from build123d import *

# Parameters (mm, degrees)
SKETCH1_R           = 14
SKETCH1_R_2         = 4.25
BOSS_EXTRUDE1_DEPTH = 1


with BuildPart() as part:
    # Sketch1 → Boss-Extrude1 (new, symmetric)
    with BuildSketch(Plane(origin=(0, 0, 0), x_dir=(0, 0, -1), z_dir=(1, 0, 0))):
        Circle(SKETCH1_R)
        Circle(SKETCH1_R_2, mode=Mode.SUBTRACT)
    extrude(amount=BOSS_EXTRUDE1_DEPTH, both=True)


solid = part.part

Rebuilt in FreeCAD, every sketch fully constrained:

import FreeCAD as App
import Part
import Sketcher
from FreeCAD import Vector

doc = App.newDocument("Part")
body = doc.addObject("PartDesign::Body", "Body")

sketch1 = doc.addObject("Sketcher::SketchObject", "Sketch")
body.addObject(sketch1)
sketch1.AttachmentSupport = (doc.YZ_Plane, [""])
sketch1.MapMode = "FlatFace"
sketch1.addGeometry(Part.Circle(Vector(0, 0, 0), Vector(0, 0, 1), 14), False)
sketch1.addGeometry(Part.Circle(Vector(0, 0, 0), Vector(0, 0, 1), 4.2), False)
sketch1.addConstraint(Sketcher.Constraint("Coincident", 0, 3, -1, 1))
sketch1.addConstraint(Sketcher.Constraint("Coincident", 1, 3, -1, 1))
sketch1.addConstraint(Sketcher.Constraint("Diameter", 0, 28.0))
sketch1.addConstraint(Sketcher.Constraint("Diameter", 1, 8.5))
pad1 = doc.addObject("PartDesign::Pad", "Pad")
body.addObject(pad1)
pad1.Profile = sketch1
pad1.Length = 2
pad1.Midplane = True

doc.recompute()
